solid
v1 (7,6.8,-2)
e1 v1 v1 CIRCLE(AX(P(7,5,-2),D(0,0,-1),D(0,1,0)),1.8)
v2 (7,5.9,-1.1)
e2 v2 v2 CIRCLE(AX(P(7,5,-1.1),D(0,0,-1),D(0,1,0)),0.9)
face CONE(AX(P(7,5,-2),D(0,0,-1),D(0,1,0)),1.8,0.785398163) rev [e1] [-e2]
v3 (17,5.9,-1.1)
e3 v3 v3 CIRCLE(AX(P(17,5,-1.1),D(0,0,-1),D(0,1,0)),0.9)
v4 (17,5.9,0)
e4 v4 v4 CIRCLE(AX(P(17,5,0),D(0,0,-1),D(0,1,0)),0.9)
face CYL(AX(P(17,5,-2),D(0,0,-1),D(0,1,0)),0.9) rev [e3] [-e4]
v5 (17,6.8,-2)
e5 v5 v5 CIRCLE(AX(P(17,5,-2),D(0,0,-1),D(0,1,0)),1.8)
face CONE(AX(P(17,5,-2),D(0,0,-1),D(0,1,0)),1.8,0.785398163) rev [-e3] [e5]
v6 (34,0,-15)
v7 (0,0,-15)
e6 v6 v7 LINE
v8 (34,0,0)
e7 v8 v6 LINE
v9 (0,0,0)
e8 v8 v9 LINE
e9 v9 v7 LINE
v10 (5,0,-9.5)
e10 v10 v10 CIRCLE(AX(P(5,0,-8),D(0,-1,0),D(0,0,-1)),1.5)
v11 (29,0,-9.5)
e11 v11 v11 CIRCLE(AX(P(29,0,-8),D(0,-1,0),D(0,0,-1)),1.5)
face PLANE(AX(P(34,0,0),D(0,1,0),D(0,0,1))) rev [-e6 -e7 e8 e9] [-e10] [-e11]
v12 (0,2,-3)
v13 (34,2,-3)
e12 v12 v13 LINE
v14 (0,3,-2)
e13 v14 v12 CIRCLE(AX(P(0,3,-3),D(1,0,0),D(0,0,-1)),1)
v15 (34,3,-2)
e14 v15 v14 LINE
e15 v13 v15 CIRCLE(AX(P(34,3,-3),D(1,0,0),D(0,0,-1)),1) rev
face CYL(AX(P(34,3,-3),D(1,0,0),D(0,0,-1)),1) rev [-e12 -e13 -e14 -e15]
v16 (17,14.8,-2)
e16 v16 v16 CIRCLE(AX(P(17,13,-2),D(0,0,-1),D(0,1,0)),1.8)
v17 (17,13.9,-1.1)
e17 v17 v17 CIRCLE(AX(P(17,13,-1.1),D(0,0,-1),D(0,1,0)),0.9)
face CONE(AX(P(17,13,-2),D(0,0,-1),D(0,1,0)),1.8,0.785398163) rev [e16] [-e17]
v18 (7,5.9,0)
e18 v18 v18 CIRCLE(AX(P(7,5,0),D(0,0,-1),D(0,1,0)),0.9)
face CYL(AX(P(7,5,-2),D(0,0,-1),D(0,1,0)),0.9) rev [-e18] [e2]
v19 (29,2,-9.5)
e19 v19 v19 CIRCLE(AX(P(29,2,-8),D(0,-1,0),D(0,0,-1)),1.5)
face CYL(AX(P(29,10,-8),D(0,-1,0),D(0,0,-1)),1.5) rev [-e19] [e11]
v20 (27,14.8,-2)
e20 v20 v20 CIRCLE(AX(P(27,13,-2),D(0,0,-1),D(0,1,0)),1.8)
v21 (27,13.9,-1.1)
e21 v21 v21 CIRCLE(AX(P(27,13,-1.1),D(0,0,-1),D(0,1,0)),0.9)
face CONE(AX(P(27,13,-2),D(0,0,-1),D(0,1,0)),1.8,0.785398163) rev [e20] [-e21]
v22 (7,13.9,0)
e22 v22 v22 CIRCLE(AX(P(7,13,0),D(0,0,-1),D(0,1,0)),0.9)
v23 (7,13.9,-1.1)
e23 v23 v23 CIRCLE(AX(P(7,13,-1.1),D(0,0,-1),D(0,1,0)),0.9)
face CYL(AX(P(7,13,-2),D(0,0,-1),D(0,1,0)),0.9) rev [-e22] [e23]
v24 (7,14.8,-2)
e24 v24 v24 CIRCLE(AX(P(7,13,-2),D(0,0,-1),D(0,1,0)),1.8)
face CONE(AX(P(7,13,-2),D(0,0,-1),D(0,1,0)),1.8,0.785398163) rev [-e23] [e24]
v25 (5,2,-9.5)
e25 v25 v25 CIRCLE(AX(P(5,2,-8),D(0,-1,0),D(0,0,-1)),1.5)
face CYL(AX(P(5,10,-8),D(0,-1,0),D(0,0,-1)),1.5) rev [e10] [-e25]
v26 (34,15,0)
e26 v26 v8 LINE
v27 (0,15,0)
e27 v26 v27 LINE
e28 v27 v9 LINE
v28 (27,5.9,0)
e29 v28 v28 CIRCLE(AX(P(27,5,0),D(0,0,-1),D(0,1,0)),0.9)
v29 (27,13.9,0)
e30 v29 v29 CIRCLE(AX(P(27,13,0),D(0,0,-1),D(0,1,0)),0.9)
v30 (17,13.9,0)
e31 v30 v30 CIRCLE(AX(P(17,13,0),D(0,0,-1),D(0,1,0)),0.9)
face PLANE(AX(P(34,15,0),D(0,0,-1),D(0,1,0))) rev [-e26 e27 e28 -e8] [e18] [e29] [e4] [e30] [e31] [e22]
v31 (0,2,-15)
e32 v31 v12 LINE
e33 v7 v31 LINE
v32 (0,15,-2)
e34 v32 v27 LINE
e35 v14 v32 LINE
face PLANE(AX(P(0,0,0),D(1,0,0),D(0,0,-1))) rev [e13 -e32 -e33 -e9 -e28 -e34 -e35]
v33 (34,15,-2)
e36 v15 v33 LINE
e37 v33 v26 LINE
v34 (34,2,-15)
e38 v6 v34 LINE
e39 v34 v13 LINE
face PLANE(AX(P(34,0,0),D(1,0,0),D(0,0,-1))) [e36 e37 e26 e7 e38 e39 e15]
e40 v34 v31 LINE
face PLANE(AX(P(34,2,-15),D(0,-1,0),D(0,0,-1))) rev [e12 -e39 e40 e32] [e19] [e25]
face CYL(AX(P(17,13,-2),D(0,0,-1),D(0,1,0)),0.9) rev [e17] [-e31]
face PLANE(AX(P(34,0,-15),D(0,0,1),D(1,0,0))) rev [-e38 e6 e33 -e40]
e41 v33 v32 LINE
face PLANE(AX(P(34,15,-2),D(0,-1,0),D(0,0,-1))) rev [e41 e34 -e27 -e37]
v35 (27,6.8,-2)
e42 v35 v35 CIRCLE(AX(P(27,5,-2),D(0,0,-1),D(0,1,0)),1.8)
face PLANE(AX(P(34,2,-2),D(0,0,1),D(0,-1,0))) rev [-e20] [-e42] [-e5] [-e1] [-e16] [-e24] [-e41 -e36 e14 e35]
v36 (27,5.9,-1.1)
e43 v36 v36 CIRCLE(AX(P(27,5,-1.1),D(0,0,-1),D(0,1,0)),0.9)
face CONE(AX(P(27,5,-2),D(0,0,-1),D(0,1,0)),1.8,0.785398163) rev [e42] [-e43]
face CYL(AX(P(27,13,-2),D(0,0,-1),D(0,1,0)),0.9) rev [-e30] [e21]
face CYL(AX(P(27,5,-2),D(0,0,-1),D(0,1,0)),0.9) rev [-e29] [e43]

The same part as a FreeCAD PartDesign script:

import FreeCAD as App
import Part
import Sketcher
Q = App.Units.Quantity


def edges_at(feature, points):
    """Names of the edges that pass closest to the given points."""
    edges = feature.Shape.Edges
    near = lambda p: min(range(len(edges)), key=lambda i: edges[i].distToShape(Part.Vertex(*p))[0])
    return sorted({f"Edge{near(p) + 1}" for p in points})

doc = App.newDocument("Part")
params = doc.addObject("Spreadsheet::Sheet", "Params")
for row, (alias, value) in enumerate([
    ("sketch1_width", "15 mm"),
    ("sketch1_width2", "2 mm"),
    ("pad1_length", "34 mm"),
    ("fillet_radius", "1 mm"),
    ("sketch2_diameter", "3 mm"),
    ("pocket1_length", "10 mm"),
    ("sketch3_width", "1.8 mm"),
    ("sketch3_height", "29.1 mm"),
    ("groove_angle", "360 deg"),
    ("linearpattern_pitch", "8 mm"),
    ("linearpattern2_pitch", "10 mm"),
    ("sketch4_width", "1.8 mm"),
    ("sketch4_height", "29.1 mm"),
    ("groove2_angle", "360 deg"),
    ("linearpattern3_pitch", "10 mm"),
    ("sketch5_width", "1.8 mm"),
    ("sketch5_height", "29.1 mm"),
    ("groove3_angle", "360 deg"),
], start=1):
    params.set(f"A{row}", alias)
    params.set(f"B{row}", "=" + value)
    params.setAlias(f"B{row}", alias)

body = doc.addObject("PartDesign::Body", "Body")

# Sketch on YZ plane
sketch1 = body.newObject("Sketcher::SketchObject", "Sketch")
sketch1.AttachmentSupport = (doc.getObject("YZ_Plane"), [""])
sketch1.MapMode = "FlatFace"
sketch1.addGeometry([
    Part.LineSegment(App.Vector(15, 0, 0), App.Vector(0, 0, 0)),  # 0
    Part.LineSegment(App.Vector(0, 0, 0), App.Vector(0, -15, 0)),  # 1
    Part.LineSegment(App.Vector(0, -15, 0), App.Vector(2, -15, 0)),  # 2
    Part.LineSegment(App.Vector(2, -15, 0), App.Vector(2, -2, 0)),  # 3
    Part.LineSegment(App.Vector(2, -2, 0), App.Vector(15, -2, 0)),  # 4
    Part.LineSegment(App.Vector(15, -2, 0), App.Vector(15, 0, 0)),  # 5
], False)
sketch1.addConstraint([
    Sketcher.Constraint("Coincident", 0, 2, 1, 1),
    Sketcher.Constraint("Coincident", 1, 2, 2, 1),
    Sketcher.Constraint("Coincident", 2, 2, 3, 1),
    Sketcher.Constraint("Coincident", 3, 2, 4, 1),
    Sketcher.Constraint("Coincident", 4, 2, 5, 1),
    Sketcher.Constraint("Coincident", 5, 2, 0, 1),
    Sketcher.Constraint("Horizontal", 0),
    Sketcher.Constraint("Vertical", 1),
    Sketcher.Constraint("Horizontal", 2),
    Sketcher.Constraint("Vertical", 3),
    Sketcher.Constraint("Horizontal", 4),
    Sketcher.Constraint("Vertical", 5),
    Sketcher.Constraint("Coincident", 0, 2, -1, 1),
    Sketcher.Constraint("Equal", 0, 1),
    Sketcher.Constraint("Equal", 4, 3),
    Sketcher.Constraint("DistanceX", 0, 2, 0, 1, 15.0),
    Sketcher.Constraint("DistanceX", 2, 1, 2, 2, 2.0),
])
sketch1.setExpression("Constraints[15]", "Params.sketch1_width")
sketch1.setExpression("Constraints[16]", "Params.sketch1_width2")
pad1 = body.newObject("PartDesign::Pad", "Pad")
pad1.Profile = sketch1
pad1.setExpression("Length", "Params.pad1_length")
doc.recompute()

fillet = body.newObject("PartDesign::Fillet", "Fillet")
fillet.Base = (pad1, edges_at(pad1, [(17, 2, -2)]))
fillet.setExpression("Radius", "Params.fillet_radius")

# Sketch on XZ plane
sketch2 = body.newObject("Sketcher::SketchObject", "Sketch001")
sketch2.AttachmentSupport = (doc.getObject("XZ_Plane"), [""])
sketch2.MapMode = "FlatFace"
sketch2.addGeometry([
    Part.Circle(App.Vector(29, -8, 0), App.Vector(0, 0, 1), 1.5),
    Part.Circle(App.Vector(5, -8, 0), App.Vector(0, 0, 1), 1.5),
], False)
sketch2.addConstraint([
    Sketcher.Constraint("Equal", 0, 1),
    Sketcher.Constraint("Horizontal", 0, 3, 1, 3),
    Sketcher.Constraint("Diameter", 0, 3.0),
    Sketcher.Constraint("DistanceX", -1, 1, 0, 3, 29.0),
    Sketcher.Constraint("DistanceY", 0, 3, -1, 1, 8.0),
    Sketcher.Constraint("DistanceX", -1, 1, 1, 3, 5.0),
])
sketch2.setExpression("Constraints[2]", "Params.sketch2_diameter")
pocket1 = body.newObject("PartDesign::Pocket", "Pocket")
pocket1.Profile = sketch2
pocket1.setExpression("Length", "Params.pocket1_length")

# Sketch on YZ plane
sketch3 = body.newObject("Sketcher::SketchObject", "Sketch002")
sketch3.AttachmentSupport = (doc.getObject("YZ_Plane"), [""])
sketch3.MapMode = "FlatFace"
sketch3.AttachmentOffset = App.Placement(App.Vector(0, 0, 17), App.Rotation())
sketch3.addGeometry([
    Part.LineSegment(App.Vector(5, 28.5, 0), App.Vector(5, -2, 0)),  # 0
    Part.LineSegment(App.Vector(5, -2, 0), App.Vector(6.8, -2, 0)),  # 1
    Part.LineSegment(App.Vector(6.8, -2, 0), App.Vector(5.9, -1.1, 0)),  # 2
    Part.LineSegment(App.Vector(5.9, -1.1, 0), App.Vector(5.9, 28, 0)),  # 3
    Part.LineSegment(App.Vector(5.9, 28, 0), App.Vector(5, 28.5, 0)),  # 4
], False)
sketch3.addGeometry(Part.LineSegment(App.Vector(5, -2, 0), App.Vector(5, 28.5, 0)), True)  # axis
sketch3.addConstraint([
    Sketcher.Constraint("Coincident", 0, 2, 1, 1),
    Sketcher.Constraint("Coincident", 1, 2, 2, 1),
    Sketcher.Constraint("Coincident", 2, 2, 3, 1),
    Sketcher.Constraint("Coincident", 3, 2, 4, 1),
    Sketcher.Constraint("Coincident", 4, 2, 0, 1),
    Sketcher.Constraint("Vertical", 0),
    Sketcher.Constraint("Horizontal", 1),
    Sketcher.Constraint("Vertical", 3),
    Sketcher.Constraint("Vertical", 5),
    Sketcher.Constraint("Coincident", 5, 1, 0, 2),
    Sketcher.Constraint("Equal", 0, 5),
    Sketcher.Constraint("Angle", 2, Q("135 deg")),
    Sketcher.Constraint("Angle", 4, Q("149 deg")),
    Sketcher.Constraint("DistanceX", 1, 1, 1, 2, 1.8),
    Sketcher.Constraint("DistanceY", 3, 1, 3, 2, 29.1),
    Sketcher.Constraint("DistanceX", -1, 1, 0, 2, 5.0),
    Sketcher.Constraint("DistanceY", 0, 2, -1, 1, 2.0),
    Sketcher.Constraint("DistanceY", -1, 1, 3, 2, 28.0),
])
sketch3.setExpression("Constraints[13]", "Params.sketch3_width")
sketch3.setExpression("Constraints[14]", "Params.sketch3_height")
groove = body.newObject("PartDesign::Groove", "Groove")
groove.Profile = sketch3
groove.ReferenceAxis = (sketch3, ["Axis0"])
groove.setExpression("Angle", "Params.groove_angle")
doc.recompute()

linearpattern = body.newObject("PartDesign::LinearPattern", "LinearPattern")
linearpattern.Originals = [groove]
linearpattern.Direction = (doc.getObject("Y_Axis"), [""])
linearpattern.Mode = "offset"
linearpattern.setExpression("Offset", "Params.linearpattern_pitch")
linearpattern.Occurrences = 2
body.Tip = linearpattern
doc.recompute()

linearpattern2 = body.newObject("PartDesign::LinearPattern", "LinearPattern001")
linearpattern2.Originals = [groove]
linearpattern2.Direction = (doc.getObject("X_Axis"), [""])
linearpattern2.Mode = "offset"
linearpattern2.setExpression("Offset", "Params.linearpattern2_pitch")
linearpattern2.Occurrences = 2
linearpattern2.Reversed = True
body.Tip = linearpattern2

# Sketch on YZ plane
sketch4 = body.newObject("Sketcher::SketchObject", "Sketch003")
sketch4.AttachmentSupport = (doc.getObject("YZ_Plane"), [""])
sketch4.MapMode = "FlatFace"
sketch4.AttachmentOffset = App.Placement(App.Vector(0, 0, 7), App.Rotation())
sketch4.addGeometry([
    Part.LineSegment(App.Vector(13, 28.5, 0), App.Vector(13, -2, 0)),  # 0
    Part.LineSegment(App.Vector(13, -2, 0), App.Vector(14.8, -2, 0)),  # 1
    Part.LineSegment(App.Vector(14.8, -2, 0), App.Vector(13.9, -1.1, 0)),  # 2
    Part.LineSegment(App.Vector(13.9, -1.1, 0), App.Vector(13.9, 28, 0)),  # 3
    Part.LineSegment(App.Vector(13.9, 28, 0), App.Vector(13, 28.5, 0)),  # 4
], False)
sketch4.addGeometry(Part.LineSegment(App.Vector(13, -2, 0), App.Vector(13, 28.5, 0)), True)  # axis
sketch4.addConstraint([
    Sketcher.Constraint("Coincident", 0, 2, 1, 1),
    Sketcher.Constraint("Coincident", 1, 2, 2, 1),
    Sketcher.Constraint("Coincident", 2, 2, 3, 1),
    Sketcher.Constraint("Coincident", 3, 2, 4, 1),
    Sketcher.Constraint("Coincident", 4, 2, 0, 1),
    Sketcher.Constraint("Vertical", 0),
    Sketcher.Constraint("Horizontal", 1),
    Sketcher.Constraint("Vertical", 3),
    Sketcher.Constraint("Vertical", 5),
    Sketcher.Constraint("Coincident", 5, 1, 0, 2),
    Sketcher.Constraint("Equal", 0, 5),
    Sketcher.Constraint("Angle", 2, Q("135 deg")),
    Sketcher.Constraint("Angle", 4, Q("149 deg")),
    Sketcher.Constraint("DistanceX", 1, 1, 1, 2, 1.8),
    Sketcher.Constraint("DistanceY", 3, 1, 3, 2, 29.1),
    Sketcher.Constraint("DistanceX", -1, 1, 0, 2, 13.0),
    Sketcher.Constraint("DistanceY", 0, 2, -1, 1, 2.0),
    Sketcher.Constraint("DistanceY", -1, 1, 3, 2, 28.0),
])
sketch4.setExpression("Constraints[13]", "Params.sketch4_width")
sketch4.setExpression("Constraints[14]", "Params.sketch4_height")
groove2 = body.newObject("PartDesign::Groove", "Groove001")
groove2.Profile = sketch4
groove2.ReferenceAxis = (sketch4, ["Axis0"])
groove2.setExpression("Angle", "Params.groove2_angle")
doc.recompute()

linearpattern3 = body.newObject("PartDesign::LinearPattern", "LinearPattern002")
linearpattern3.Originals = [groove]
linearpattern3.Direction = (doc.getObject("X_Axis"), [""])
linearpattern3.Mode = "offset"
linearpattern3.setExpression("Offset", "Params.linearpattern3_pitch")
linearpattern3.Occurrences = 2
body.Tip = linearpattern3

# Sketch on YZ plane
sketch5 = body.newObject("Sketcher::SketchObject", "Sketch004")
sketch5.AttachmentSupport = (doc.getObject("YZ_Plane"), [""])
sketch5.MapMode = "FlatFace"
sketch5.AttachmentOffset = App.Placement(App.Vector(0, 0, 27), App.Rotation())
sketch5.addGeometry([
    Part.LineSegment(App.Vector(13, 28.5, 0), App.Vector(13, -2, 0)),  # 0
    Part.LineSegment(App.Vector(13, -2, 0), App.Vector(14.8, -2, 0)),  # 1
    Part.LineSegment(App.Vector(14.8, -2, 0), App.Vector(13.9, -1.1, 0)),  # 2
    Part.LineSegment(App.Vector(13.9, -1.1, 0), App.Vector(13.9, 28, 0)),  # 3
    Part.LineSegment(App.Vector(13.9, 28, 0), App.Vector(13, 28.5, 0)),  # 4
], False)
sketch5.addGeometry(Part.LineSegment(App.Vector(13, -2, 0), App.Vector(13, 28.5, 0)), True)  # axis
sketch5.addConstraint([
    Sketcher.Constraint("Coincident", 0, 2, 1, 1),
    Sketcher.Constraint("Coincident", 1, 2, 2, 1),
    Sketcher.Constraint("Coincident", 2, 2, 3, 1),
    Sketcher.Constraint("Coincident", 3, 2, 4, 1),
    Sketcher.Constraint("Coincident", 4, 2, 0, 1),
    Sketcher.Constraint("Vertical", 0),
    Sketcher.Constraint("Horizontal", 1),
    Sketcher.Constraint("Vertical", 3),
    Sketcher.Constraint("Vertical", 5),
    Sketcher.Constraint("Coincident", 5, 1, 0, 2),
    Sketcher.Constraint("Equal", 0, 5),
    Sketcher.Constraint("Angle", 2, Q("135 deg")),
    Sketcher.Constraint("Angle", 4, Q("149 deg")),
    Sketcher.Constraint("DistanceX", 1, 1, 1, 2, 1.8),
    Sketcher.Constraint("DistanceY", 3, 1, 3, 2, 29.1),
    Sketcher.Constraint("DistanceX", -1, 1, 0, 2, 13.0),
    Sketcher.Constraint("DistanceY", 0, 2, -1, 1, 2.0),
    Sketcher.Constraint("DistanceY", -1, 1, 3, 2, 28.0),
])
sketch5.setExpression("Constraints[13]", "Params.sketch5_width")
sketch5.setExpression("Constraints[14]", "Params.sketch5_height")
groove3 = body.newObject("PartDesign::Groove", "Groove002")
groove3.Profile = sketch5
groove3.ReferenceAxis = (sketch5, ["Axis0"])
groove3.setExpression("Angle", "Params.groove3_angle")

doc.recompute()
